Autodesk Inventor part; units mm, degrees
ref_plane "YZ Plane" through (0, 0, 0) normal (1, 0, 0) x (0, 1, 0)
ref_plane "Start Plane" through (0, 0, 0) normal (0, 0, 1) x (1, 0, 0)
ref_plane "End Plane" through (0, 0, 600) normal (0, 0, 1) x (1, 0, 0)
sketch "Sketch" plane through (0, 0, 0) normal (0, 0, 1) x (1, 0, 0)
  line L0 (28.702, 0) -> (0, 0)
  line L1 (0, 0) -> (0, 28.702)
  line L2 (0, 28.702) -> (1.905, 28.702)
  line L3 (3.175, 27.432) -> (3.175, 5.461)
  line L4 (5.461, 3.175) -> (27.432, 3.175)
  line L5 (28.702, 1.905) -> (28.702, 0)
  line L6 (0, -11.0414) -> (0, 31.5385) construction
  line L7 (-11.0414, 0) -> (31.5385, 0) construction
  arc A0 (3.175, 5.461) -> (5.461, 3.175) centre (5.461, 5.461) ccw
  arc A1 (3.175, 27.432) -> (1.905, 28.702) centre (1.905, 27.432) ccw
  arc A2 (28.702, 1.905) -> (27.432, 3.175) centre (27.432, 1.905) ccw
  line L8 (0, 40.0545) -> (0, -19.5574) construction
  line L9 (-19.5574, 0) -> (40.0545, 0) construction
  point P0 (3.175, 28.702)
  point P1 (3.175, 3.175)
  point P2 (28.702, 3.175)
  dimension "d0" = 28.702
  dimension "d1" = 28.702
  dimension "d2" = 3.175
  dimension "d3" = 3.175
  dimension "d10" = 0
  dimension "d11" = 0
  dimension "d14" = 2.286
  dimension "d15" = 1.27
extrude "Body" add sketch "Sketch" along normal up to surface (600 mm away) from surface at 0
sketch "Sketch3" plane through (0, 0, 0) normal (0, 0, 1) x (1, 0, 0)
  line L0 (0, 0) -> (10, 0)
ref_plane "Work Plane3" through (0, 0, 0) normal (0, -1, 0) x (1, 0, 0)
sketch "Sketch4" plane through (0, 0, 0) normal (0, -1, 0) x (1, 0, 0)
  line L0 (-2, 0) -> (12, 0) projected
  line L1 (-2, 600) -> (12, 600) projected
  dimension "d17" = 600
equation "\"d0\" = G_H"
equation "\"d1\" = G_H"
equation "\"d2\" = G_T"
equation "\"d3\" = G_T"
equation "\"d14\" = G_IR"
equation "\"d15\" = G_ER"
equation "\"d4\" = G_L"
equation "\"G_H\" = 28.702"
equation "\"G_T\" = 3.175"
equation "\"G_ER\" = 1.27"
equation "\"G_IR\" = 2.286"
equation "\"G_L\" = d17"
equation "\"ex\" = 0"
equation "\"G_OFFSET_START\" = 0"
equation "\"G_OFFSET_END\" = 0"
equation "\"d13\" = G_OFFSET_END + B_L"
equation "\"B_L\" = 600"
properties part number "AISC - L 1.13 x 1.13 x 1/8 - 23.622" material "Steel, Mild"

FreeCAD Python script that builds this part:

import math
import FreeCAD as App
import Part
import Sketcher
from FreeCAD import Vector
Q = App.Units.Quantity

doc = App.newDocument("Part")
params = doc.addObject("Spreadsheet::Sheet", "Params")
for row, (alias, value) in enumerate([
    ("sketch1_radius", "0.05 in"),
    ("sketch1_radius2", "0.09 in"),
    ("sketch1_width", "1.13 in"),
    ("pad1_length", "600 mm"),
], start=1):
    params.set(f"A{row}", alias)
    params.set(f"B{row}", "=" + value)
    params.setAlias(f"B{row}", alias)

body = doc.addObject("PartDesign::Body", "Body")

# Sketch on XY plane
sketch1 = body.newObject("Sketcher::SketchObject", "Sketch")
sketch1.AttachmentSupport = (doc.getObject("XY_Plane"), [""])
sketch1.MapMode = "FlatFace"
sketch1.addGeometry([
    Part.LineSegment(Vector(0, 0, 0), Vector(28.7, 0, 0)),  # 0
    Part.LineSegment(Vector(28.7, 0, 0), Vector(28.7, 1.9, 0)),  # 1
    Part.ArcOfCircle(Part.Circle(Vector(27.4, 1.9, 0), Vector(0, 0, 1), 1.3), math.radians(0), math.radians(90)),  # 2
    Part.LineSegment(Vector(27.4, 3.2, 0), Vector(5.5, 3.2, 0)),  # 3
    Part.ArcOfCircle(Part.Circle(Vector(5.5, 5.5, 0), Vector(0, 0, 1), 2.3), math.radians(180), math.radians(270)),  # 4
    Part.LineSegment(Vector(3.2, 5.5, 0), Vector(3.2, 27.4, 0)),  # 5
    Part.ArcOfCircle(Part.Circle(Vector(1.9, 27.4, 0), Vector(0, 0, 1), 1.3), math.radians(0), math.radians(90)),  # 6
    Part.LineSegment(Vector(1.9, 28.7, 0), Vector(0, 28.7, 0)),  # 7
    Part.LineSegment(Vector(0, 28.7, 0), Vector(0, 0, 0)),  # 8
], False)
sketch1.addConstraint([
    Sketcher.Constraint("Coincident", 0, 2, 1, 1),
    Sketcher.Constraint("Tangent", 1, 2, 2, 1),
    Sketcher.Constraint("Tangent", 2, 2, 3, 1),
    Sketcher.Constraint("Tangent", 3, 2, 4, 2),
    Sketcher.Constraint("Tangent", 4, 1, 5, 1),
    Sketcher.Constraint("Tangent", 5, 2, 6, 1),
    Sketcher.Constraint("Tangent", 6, 2, 7, 1),
    Sketcher.Constraint("Coincident", 7, 2, 8, 1),
    Sketcher.Constraint("Coincident", 8, 2, 0, 1),
    Sketcher.Constraint("Horizontal", 0),
    Sketcher.Constraint("Vertical", 1),
    Sketcher.Constraint("Horizontal", 3),
    Sketcher.Constraint("Vertical", 5),
    Sketcher.Constraint("Horizontal", 7),
    Sketcher.Constraint("Vertical", 8),
    Sketcher.Constraint("Coincident", 8, 2, -1, 1),
    Sketcher.Constraint("Equal", 2, 6),
    Sketcher.Constraint("Equal", 7, 1),
    Sketcher.Constraint("Equal", 3, 5),
    Sketcher.Constraint("Radius", 2, Q("0.05 in")),
    Sketcher.Constraint("Radius", 4, Q("0.09 in")),
    Sketcher.Constraint("DistanceX", 0, 1, 0, 2, Q("1.13 in")),
    Sketcher.Constraint("DistanceY", -1, 1, 2, 2, Q("0.125 in")),
])
sketch1.setExpression("Constraints[19]", "Params.sketch1_radius")
sketch1.setExpression("Constraints[20]", "Params.sketch1_radius2")
sketch1.setExpression("Constraints[21]", "Params.sketch1_width")
pad1 = body.newObject("PartDesign::Pad", "Pad")
pad1.Profile = sketch1
pad1.setExpression("Length", "Params.pad1_length")

doc.recompute()
